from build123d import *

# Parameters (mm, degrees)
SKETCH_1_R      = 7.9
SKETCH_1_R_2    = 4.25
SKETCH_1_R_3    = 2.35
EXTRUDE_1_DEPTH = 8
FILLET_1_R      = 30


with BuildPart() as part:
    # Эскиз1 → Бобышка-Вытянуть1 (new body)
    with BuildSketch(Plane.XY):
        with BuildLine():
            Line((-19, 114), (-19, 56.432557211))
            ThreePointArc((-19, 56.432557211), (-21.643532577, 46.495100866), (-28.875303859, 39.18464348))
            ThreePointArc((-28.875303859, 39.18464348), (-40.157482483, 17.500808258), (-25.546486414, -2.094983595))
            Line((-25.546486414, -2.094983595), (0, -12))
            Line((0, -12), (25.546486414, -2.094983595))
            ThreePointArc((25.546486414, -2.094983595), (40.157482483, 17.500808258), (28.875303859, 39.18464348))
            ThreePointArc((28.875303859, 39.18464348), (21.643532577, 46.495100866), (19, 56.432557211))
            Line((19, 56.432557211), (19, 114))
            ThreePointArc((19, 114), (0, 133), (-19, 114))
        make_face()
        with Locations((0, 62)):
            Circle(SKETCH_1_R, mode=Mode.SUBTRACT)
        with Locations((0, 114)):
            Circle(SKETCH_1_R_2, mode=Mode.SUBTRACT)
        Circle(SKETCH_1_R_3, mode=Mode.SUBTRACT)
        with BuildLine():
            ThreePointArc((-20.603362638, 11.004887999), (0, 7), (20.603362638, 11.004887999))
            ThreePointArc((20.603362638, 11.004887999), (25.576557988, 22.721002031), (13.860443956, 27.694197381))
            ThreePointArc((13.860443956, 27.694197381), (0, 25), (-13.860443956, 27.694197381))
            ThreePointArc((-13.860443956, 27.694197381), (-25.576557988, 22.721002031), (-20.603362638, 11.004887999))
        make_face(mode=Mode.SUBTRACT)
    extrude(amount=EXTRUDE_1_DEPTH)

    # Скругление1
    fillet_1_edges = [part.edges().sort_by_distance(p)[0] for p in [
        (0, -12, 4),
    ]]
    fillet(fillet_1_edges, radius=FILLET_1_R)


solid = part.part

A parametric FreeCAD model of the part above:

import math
import FreeCAD as App
import Part
import Sketcher
Q = App.Units.Quantity


def edges_at(feature, points):
    """Names of the edges that pass closest to the given points."""
    edges = feature.Shape.Edges
    near = lambda p: min(range(len(edges)), key=lambda i: edges[i].distToShape(Part.Vertex(*p))[0])
    return sorted({f"Edge{near(p) + 1}" for p in points})

doc = App.newDocument("Part")
body = doc.addObject("PartDesign::Body", "Body")

sketch1 = body.newObject("Sketcher::SketchObject", "Sketch")
sketch1.AttachmentSupport = (doc.getObject("XY_Plane"), [""])
sketch1.MapMode = "FlatFace"
sketch1.addGeometry(Part.LineSegment(App.Vector(-19, 114, 0), App.Vector(-19, 56.4, 0)), False)
sketch1.addGeometry(Part.ArcOfCircle(Part.Circle(App.Vector(-39, 56.4, 0), App.Vector(0, 0, 1), 20), math.radians(-60), math.radians(0)), False)
sketch1.addGeometry(Part.ArcOfCircle(Part.Circle(App.Vector(-17.2, 19.3, 0), App.Vector(0, 0, 1), 23), math.radians(120), math.radians(249)), False)
sketch1.addGeometry(Part.LineSegment(App.Vector(-25.5, -2.1, 0), App.Vector(0, -12, 0)), False)
sketch1.addGeometry(Part.LineSegment(App.Vector(0, -12, 0), App.Vector(25.5, -2.1, 0)), False)
sketch1.addGeometry(Part.ArcOfCircle(Part.Circle(App.Vector(17.2, 19.3, 0), App.Vector(0, 0, 1), 23), math.radians(-69), math.radians(60)), False)
sketch1.addGeometry(Part.ArcOfCircle(Part.Circle(App.Vector(39, 56.4, 0), App.Vector(0, 0, 1), 20), math.radians(180), math.radians(240)), False)
sketch1.addGeometry(Part.LineSegment(App.Vector(19, 56.4, 0), App.Vector(19, 114, 0)), False)
sketch1.addGeometry(Part.ArcOfCircle(Part.Circle(App.Vector(0, 114, 0), App.Vector(0, 0, 1), 19), math.radians(0), math.radians(180)), False)
sketch1.addGeometry(Part.Circle(App.Vector(0, 0, 0), App.Vector(0, 0, 1), 2.4), False)
sketch1.addGeometry(Part.ArcOfCircle(Part.Circle(App.Vector(0, 62, 0), App.Vector(0, 0, 1), 55), math.radians(-112), math.radians(-68)), False)
sketch1.addGeometry(Part.ArcOfCircle(Part.Circle(App.Vector(-17.2, 19.3, 0), App.Vector(0, 0, 1), 9), math.radians(68), math.radians(248)), False)
sketch1.addGeometry(Part.ArcOfCircle(Part.Circle(App.Vector(0, 62, 0), App.Vector(0, 0, 1), 37), math.radians(-112), math.radians(-68)), False)
sketch1.addGeometry(Part.ArcOfCircle(Part.Circle(App.Vector(17.2, 19.3, 0), App.Vector(0, 0, 1), 9), math.radians(-68), math.radians(112)), False)
sketch1.addGeometry(Part.Circle(App.Vector(0, 62, 0), App.Vector(0, 0, 1), 7.9), False)
sketch1.addGeometry(Part.Circle(App.Vector(0, 114, 0), App.Vector(0, 0, 1), 4.2), False)
sketch1.addConstraint(Sketcher.Constraint("Tangent", 0, 2, 1, 2))
sketch1.addConstraint(Sketcher.Constraint("Tangent", 1, 1, 2, 1))
sketch1.addConstraint(Sketcher.Constraint("Tangent", 2, 2, 3, 1))
sketch1.addConstraint(Sketcher.Constraint("Coincident", 3, 2, 4, 1))
sketch1.addConstraint(Sketcher.Constraint("Tangent", 4, 2, 5, 1))
sketch1.addConstraint(Sketcher.Constraint("Tangent", 5, 2, 6, 2))
sketch1.addConstraint(Sketcher.Constraint("Tangent", 6, 1, 7, 1))
sketch1.addConstraint(Sketcher.Constraint("Tangent", 7, 2, 8, 1))
sketch1.addConstraint(Sketcher.Constraint("Tangent", 8, 2, 0, 1))
sketch1.addConstraint(Sketcher.Constraint("Tangent", 10, 1, 11, 2))
sketch1.addConstraint(Sketcher.Constraint("Tangent", 11, 1, 12, 1))
sketch1.addConstraint(Sketcher.Constraint("Tangent", 12, 2, 13, 2))
sketch1.addConstraint(Sketcher.Constraint("Tangent", 13, 1, 10, 2))
sketch1.addConstraint(Sketcher.Constraint("Vertical", 0))
sketch1.addConstraint(Sketcher.Constraint("Vertical", 7))
sketch1.addConstraint(Sketcher.Constraint("Coincident", 9, 3, -1, 1))
sketch1.addConstraint(Sketcher.Constraint("Coincident", 11, 3, 2, 3))
sketch1.addConstraint(Sketcher.Constraint("Coincident", 12, 3, 10, 3))
sketch1.addConstraint(Sketcher.Constraint("Coincident", 13, 3, 5, 3))
sketch1.addConstraint(Sketcher.Constraint("Coincident", 14, 3, 10, 3))
sketch1.addConstraint(Sketcher.Constraint("Coincident", 15, 3, 8, 3))
sketch1.addConstraint(Sketcher.Constraint("Equal", 2, 5))
sketch1.addConstraint(Sketcher.Constraint("Equal", 1, 6))
sketch1.addConstraint(Sketcher.Constraint("Symmetric", 2, 3, 5, 3, -2))
sketch1.addConstraint(Sketcher.Constraint("PointOnObject", 8, 3, -2))
sketch1.addConstraint(Sketcher.Constraint("PointOnObject", 3, 2, -2))
sketch1.addConstraint(Sketcher.Constraint("Radius", 1, Q("20 mm")))
sketch1.addConstraint(Sketcher.Constraint("Radius", 2, Q("23 mm")))
sketch1.addConstraint(Sketcher.Constraint("Radius", 8, Q("19 mm")))
sketch1.addConstraint(Sketcher.Constraint("Radius", 10, Q("55 mm")))
sketch1.addConstraint(Sketcher.Constraint("Radius", 11, Q("9 mm")))
sketch1.addConstraint(Sketcher.Constraint("Diameter", 9, Q("4.7 mm")))
sketch1.addConstraint(Sketcher.Constraint("Diameter", 14, Q("15.8 mm")))
sketch1.addConstraint(Sketcher.Constraint("Diameter", 15, Q("8.5 mm")))
sketch1.addConstraint(Sketcher.Constraint("DistanceY", -1, 1, 8, 3, Q("114 mm")))
sketch1.addConstraint(Sketcher.Constraint("DistanceY", -1, 1, 10, 3, Q("62 mm")))
sketch1.addConstraint(Sketcher.Constraint("DistanceY", 3, 2, -1, 1, Q("12 mm")))
sketch1.addConstraint(Sketcher.Constraint("DistanceX", 1, 1, 2, 3, Q("11.643401 mm")))
pad1 = body.newObject("PartDesign::Pad", "Pad")
pad1.Profile = sketch1
pad1.Length = 8
doc.recompute()

fillet = body.newObject("PartDesign::Fillet", "Fillet")
fillet.Base = (pad1, edges_at(pad1, [(0, -12, 4)]))
fillet.Radius = 30

doc.recompute()
